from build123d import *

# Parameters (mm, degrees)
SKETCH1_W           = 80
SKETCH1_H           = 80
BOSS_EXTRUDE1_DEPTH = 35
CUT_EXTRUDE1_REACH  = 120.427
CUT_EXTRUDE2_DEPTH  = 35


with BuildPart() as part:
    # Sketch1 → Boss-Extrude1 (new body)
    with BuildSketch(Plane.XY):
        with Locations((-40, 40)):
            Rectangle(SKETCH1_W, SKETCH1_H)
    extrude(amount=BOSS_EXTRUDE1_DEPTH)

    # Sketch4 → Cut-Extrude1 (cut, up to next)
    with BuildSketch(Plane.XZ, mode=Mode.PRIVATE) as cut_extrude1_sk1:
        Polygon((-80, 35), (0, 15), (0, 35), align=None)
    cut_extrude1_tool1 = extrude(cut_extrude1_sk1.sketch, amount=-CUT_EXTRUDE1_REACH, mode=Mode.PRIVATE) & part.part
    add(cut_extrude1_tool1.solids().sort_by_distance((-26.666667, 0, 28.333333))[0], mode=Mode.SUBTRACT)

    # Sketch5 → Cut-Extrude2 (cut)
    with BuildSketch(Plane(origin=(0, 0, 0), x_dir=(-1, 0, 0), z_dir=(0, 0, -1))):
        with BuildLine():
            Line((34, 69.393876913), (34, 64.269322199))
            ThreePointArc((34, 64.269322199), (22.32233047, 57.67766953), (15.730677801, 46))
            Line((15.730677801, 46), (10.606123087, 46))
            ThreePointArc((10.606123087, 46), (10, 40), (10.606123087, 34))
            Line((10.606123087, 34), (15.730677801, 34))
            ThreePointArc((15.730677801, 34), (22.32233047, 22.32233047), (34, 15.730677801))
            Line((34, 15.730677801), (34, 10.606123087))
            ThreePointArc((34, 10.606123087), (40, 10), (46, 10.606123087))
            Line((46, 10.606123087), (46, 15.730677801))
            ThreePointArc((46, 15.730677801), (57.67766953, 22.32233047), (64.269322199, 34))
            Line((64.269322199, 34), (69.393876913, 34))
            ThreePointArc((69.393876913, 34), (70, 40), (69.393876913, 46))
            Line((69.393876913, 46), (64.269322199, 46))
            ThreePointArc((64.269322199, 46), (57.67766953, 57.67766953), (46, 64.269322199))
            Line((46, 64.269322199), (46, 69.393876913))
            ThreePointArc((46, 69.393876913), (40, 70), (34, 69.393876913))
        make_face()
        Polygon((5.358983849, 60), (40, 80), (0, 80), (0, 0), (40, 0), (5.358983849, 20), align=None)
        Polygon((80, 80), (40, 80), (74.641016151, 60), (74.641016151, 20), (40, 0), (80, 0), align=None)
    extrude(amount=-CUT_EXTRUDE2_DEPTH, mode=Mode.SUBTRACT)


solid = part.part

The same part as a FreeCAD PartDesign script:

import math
import FreeCAD as App
import Part
import Sketcher
Q = App.Units.Quantity

doc = App.newDocument("Part")
body = doc.addObject("PartDesign::Body", "Body")

# Sketch on XY plane
sketch1 = body.newObject("Sketcher::SketchObject", "Sketch")
sketch1.AttachmentSupport = (doc.getObject("XY_Plane"), [""])
sketch1.MapMode = "FlatFace"
sketch1.addGeometry(Part.LineSegment(App.Vector(-80, 80, 0), App.Vector(-80, 0, 0)), False)
sketch1.addGeometry(Part.LineSegment(App.Vector(-80, 0, 0), App.Vector(0, 0, 0)), False)
sketch1.addGeometry(Part.LineSegment(App.Vector(0, 0, 0), App.Vector(0, 80, 0)), False)
sketch1.addGeometry(Part.LineSegment(App.Vector(0, 80, 0), App.Vector(-80, 80, 0)), False)
sketch1.addConstraint(Sketcher.Constraint("Coincident", 0, 2, 1, 1))
sketch1.addConstraint(Sketcher.Constraint("Coincident", 1, 2, 2, 1))
sketch1.addConstraint(Sketcher.Constraint("Coincident", 2, 2, 3, 1))
sketch1.addConstraint(Sketcher.Constraint("Coincident", 3, 2, 0, 1))
sketch1.addConstraint(Sketcher.Constraint("Vertical", 0))
sketch1.addConstraint(Sketcher.Constraint("Horizontal", 1))
sketch1.addConstraint(Sketcher.Constraint("Vertical", 2))
sketch1.addConstraint(Sketcher.Constraint("Horizontal", 3))
sketch1.addConstraint(Sketcher.Constraint("Coincident", 1, 2, -1, 1))
sketch1.addConstraint(Sketcher.Constraint("Equal", 3, 0))
sketch1.addConstraint(Sketcher.Constraint("DistanceX", 1, 1, 1, 2, Q("80 mm")))
pad1 = body.newObject("PartDesign::Pad", "Pad")
pad1.Profile = sketch1
pad1.Length = 35

# Sketch on XZ plane
sketch2 = body.newObject("Sketcher::SketchObject", "Sketch001")
sketch2.AttachmentSupport = (doc.getObject("XZ_Plane"), [""])
sketch2.MapMode = "FlatFace"
sketch2.addGeometry(Part.LineSegment(App.Vector(-80, 35, 0), App.Vector(0, 15, 0)), False)
sketch2.addGeometry(Part.LineSegment(App.Vector(0, 15, 0), App.Vector(0, 35, 0)), False)
sketch2.addGeometry(Part.LineSegment(App.Vector(0, 35, 0), App.Vector(-80, 35, 0)), False)
sketch2.addConstraint(Sketcher.Constraint("Coincident", 0, 2, 1, 1))
sketch2.addConstraint(Sketcher.Constraint("Coincident", 1, 2, 2, 1))
sketch2.addConstraint(Sketcher.Constraint("Coincident", 2, 2, 0, 1))
sketch2.addConstraint(Sketcher.Constraint("Vertical", 1))
sketch2.addConstraint(Sketcher.Constraint("Horizontal", 2))
sketch2.addConstraint(Sketcher.Constraint("PointOnObject", 0, 2, -2))
sketch2.addConstraint(Sketcher.Constraint("DistanceX", 2, 2, 2, 1, Q("80 mm")))
sketch2.addConstraint(Sketcher.Constraint("DistanceY", 1, 1, 1, 2, Q("20 mm")))
sketch2.addConstraint(Sketcher.Constraint("DistanceY", -1, 1, 0, 2, Q("15 mm")))
pocket1 = body.newObject("PartDesign::Pocket", "Pocket")
pocket1.Profile = sketch2
pocket1.Type = "UpToFirst"

# Sketch on XY plane
sketch3 = body.newObject("Sketcher::SketchObject", "Sketch002")
sketch3.AttachmentSupport = (doc.getObject("XY_Plane"), [""])
sketch3.MapMode = "FlatFace"
sketch3.addGeometry(Part.LineSegment(App.Vector(-34, 69.393877, 0), App.Vector(-34, 64.269322, 0)), False)
sketch3.addGeometry(Part.ArcOfCircle(Part.Circle(App.Vector(-40, 40, 0), App.Vector(0, 0, 1), 25), math.radians(13.88654), math.radians(76.11346)), False)
sketch3.addGeometry(Part.LineSegment(App.Vector(-15.730678, 46, 0), App.Vector(-10.606123, 46, 0)), False)
sketch3.addGeometry(Part.ArcOfCircle(Part.Circle(App.Vector(-40, 40, 0), App.Vector(0, 0, 1), 30), math.radians(-11.536959), math.radians(11.536959)), False)
sketch3.addGeometry(Part.LineSegment(App.Vector(-10.606123, 34, 0), App.Vector(-15.730678, 34, 0)), False)
sketch3.addGeometry(Part.ArcOfCircle(Part.Circle(App.Vector(-40, 40, 0), App.Vector(0, 0, 1), 25), math.radians(-76.11346), math.radians(-13.88654)), False)
sketch3.addGeometry(Part.LineSegment(App.Vector(-34, 15.730678, 0), App.Vector(-34, 10.606123, 0)), False)
sketch3.addGeometry(Part.ArcOfCircle(Part.Circle(App.Vector(-40, 40, 0), App.Vector(0, 0, 1), 30), math.radians(-101.536959), math.radians(-78.463041)), False)
sketch3.addGeometry(Part.LineSegment(App.Vector(-46, 10.606123, 0), App.Vector(-46, 15.730678, 0)), False)
sketch3.addGeometry(Part.ArcOfCircle(Part.Circle(App.Vector(-40, 40, 0), App.Vector(0, 0, 1), 25), math.radians(-166.11346), math.radians(-103.88654)), False)
sketch3.addGeometry(Part.LineSegment(App.Vector(-64.269322, 34, 0), App.Vector(-69.393877, 34, 0)), False)
sketch3.addGeometry(Part.ArcOfCircle(Part.Circle(App.Vector(-40, 40, 0), App.Vector(0, 0, 1), 30), math.radians(168.463041), math.radians(191.536959)), False)
sketch3.addGeometry(Part.LineSegment(App.Vector(-69.393877, 46, 0), App.Vector(-64.269322, 46, 0)), False)
sketch3.addGeometry(Part.ArcOfCircle(Part.Circle(App.Vector(-40, 40, 0), App.Vector(0, 0, 1), 25), math.radians(103.88654), math.radians(166.11346)), False)
sketch3.addGeometry(Part.LineSegment(App.Vector(-46, 64.269322, 0), App.Vector(-46, 69.393877, 0)), False)
sketch3.addGeometry(Part.ArcOfCircle(Part.Circle(App.Vector(-40, 40, 0), App.Vector(0, 0, 1), 30), math.radians(78.463041), math.radians(101.536959)), False)
sketch3.addGeometry(Part.LineSegment(App.Vector(-5.358984, 60, 0), App.Vector(-40, 80, 0)), False)
sketch3.addGeometry(Part.LineSegment(App.Vector(-40, 80, 0), App.Vector(0, 80, 0)), False)
sketch3.addGeometry(Part.LineSegment(App.Vector(0, 80, 0), App.Vector(0, 0, 0)), False)
sketch3.addGeometry(Part.LineSegment(App.Vector(0, 0, 0), App.Vector(-40, 0, 0)), False)
sketch3.addGeometry(Part.LineSegment(App.Vector(-40, 0, 0), App.Vector(-5.358984, 20, 0)), False)
sketch3.addGeometry(Part.LineSegment(App.Vector(-5.358984, 20, 0), App.Vector(-5.358984, 60, 0)), False)
sketch3.addGeometry(Part.LineSegment(App.Vector(-80, 80, 0), App.Vector(-40, 80, 0)), False)
sketch3.addGeometry(Part.LineSegment(App.Vector(-40, 80, 0), App.Vector(-74.641016, 60, 0)), False)
sketch3.addGeometry(Part.LineSegment(App.Vector(-74.641016, 60, 0), App.Vector(-74.641016, 20, 0)), False)
sketch3.addGeometry(Part.LineSegment(App.Vector(-74.641016, 20, 0), App.Vector(-40, 0, 0)), False)
sketch3.addGeometry(Part.LineSegment(App.Vector(-40, 0, 0), App.Vector(-80, 0, 0)), False)
sketch3.addGeometry(Part.LineSegment(App.Vector(-80, 0, 0), App.Vector(-80, 80, 0)), False)
sketch3.addConstraint(Sketcher.Constraint("Coincident", 0, 2, 1, 2))
sketch3.addConstraint(Sketcher.Constraint("Coincident", 1, 1, 2, 1))
sketch3.addConstraint(Sketcher.Constraint("Coincident", 2, 2, 3, 2))
sketch3.addConstraint(Sketcher.Constraint("Coincident", 3, 1, 4, 1))
sketch3.addConstraint(Sketcher.Constraint("Coincident", 4, 2, 5, 2))
sketch3.addConstraint(Sketcher.Constraint("Coincident", 5, 1, 6, 1))
sketch3.addConstraint(Sketcher.Constraint("Coincident", 6, 2, 7, 2))
sketch3.addConstraint(Sketcher.Constraint("Coincident", 7, 1, 8, 1))
sketch3.addConstraint(Sketcher.Constraint("Coincident", 8, 2, 9, 2))
sketch3.addConstraint(Sketcher.Constraint("Coincident", 9, 1, 10, 1))
sketch3.addConstraint(Sketcher.Constraint("Coincident", 10, 2, 11, 2))
sketch3.addConstraint(Sketcher.Constraint("Coincident", 11, 1, 12, 1))
sketch3.addConstraint(Sketcher.Constraint("Coincident", 12, 2, 13, 2))
sketch3.addConstraint(Sketcher.Constraint("Coincident", 13, 1, 14, 1))
sketch3.addConstraint(Sketcher.Constraint("Coincident", 14, 2, 15, 2))
sketch3.addConstraint(Sketcher.Constraint("Coincident", 15, 1, 0, 1))
sketch3.addConstraint(Sketcher.Constraint("Coincident", 16, 2, 17, 1))
sketch3.addConstraint(Sketcher.Constraint("Coincident", 17, 2, 18, 1))
sketch3.addConstraint(Sketcher.Constraint("Coincident", 18, 2, 19, 1))
sketch3.addConstraint(Sketcher.Constraint("Coincident", 19, 2, 20, 1))
sketch3.addConstraint(Sketcher.Constraint("Coincident", 20, 2, 21, 1))
sketch3.addConstraint(Sketcher.Constraint("Coincident", 21, 2, 16, 1))
sketch3.addConstraint(Sketcher.Constraint("Coincident", 22, 2, 23, 1))
sketch3.addConstraint(Sketcher.Constraint("Coincident", 23, 2, 24, 1))
sketch3.addConstraint(Sketcher.Constraint("Coincident", 24, 2, 25, 1))
sketch3.addConstraint(Sketcher.Constraint("Coincident", 25, 2, 26, 1))
sketch3.addConstraint(Sketcher.Constraint("Coincident", 26, 2, 27, 1))
sketch3.addConstraint(Sketcher.Constraint("Coincident", 27, 2, 22, 1))
sketch3.addConstraint(Sketcher.Constraint("Vertical", 0))
sketch3.addConstraint(Sketcher.Constraint("Horizontal", 2))
sketch3.addConstraint(Sketcher.Constraint("Horizontal", 4))
sketch3.addConstraint(Sketcher.Constraint("Vertical", 6))
sketch3.addConstraint(Sketcher.Constraint("Vertical", 8))
sketch3.addConstraint(Sketcher.Constraint("Horizontal", 10))
sketch3.addConstraint(Sketcher.Constraint("Horizontal", 12))
sketch3.addConstraint(Sketcher.Constraint("Vertical", 14))
sketch3.addConstraint(Sketcher.Constraint("Horizontal", 17))
sketch3.addConstraint(Sketcher.Constraint("Vertical", 18))
sketch3.addConstraint(Sketcher.Constraint("Horizontal", 19))
sketch3.addConstraint(Sketcher.Constraint("Vertical", 21))
sketch3.addConstraint(Sketcher.Constraint("Horizontal", 22))
sketch3.addConstraint(Sketcher.Constraint("Vertical", 24))
sketch3.addConstraint(Sketcher.Constraint("Horizontal", 26))
sketch3.addConstraint(Sketcher.Constraint("Vertical", 27))
sketch3.addConstraint(Sketcher.Constraint("Coincident", 18, 2, -1, 1))
sketch3.addConstraint(Sketcher.Constraint("Coincident", 3, 3, 1, 3))
sketch3.addConstraint(Sketcher.Constraint("Coincident", 5, 3, 1, 3))
sketch3.addConstraint(Sketcher.Constraint("Coincident", 7, 3, 1, 3))
sketch3.addConstraint(Sketcher.Constraint("Coincident", 9, 3, 1, 3))
sketch3.addConstraint(Sketcher.Constraint("Coincident", 11, 3, 1, 3))
sketch3.addConstraint(Sketcher.Constraint("Coincident", 13, 3, 1, 3))
sketch3.addConstraint(Sketcher.Constraint("Coincident", 15, 3, 1, 3))
sketch3.addConstraint(Sketcher.Constraint("Coincident", 22, 2, 16, 2))
sketch3.addConstraint(Sketcher.Constraint("Coincident", 25, 2, 19, 2))
sketch3.addConstraint(Sketcher.Constraint("Equal", 1, 5))
sketch3.addConstraint(Sketcher.Constraint("Equal", 3, 7))
sketch3.addConstraint(Sketcher.Constraint("Equal", 5, 9))
sketch3.addConstraint(Sketcher.Constraint("Equal", 7, 11))
sketch3.addConstraint(Sketcher.Constraint("Equal", 9, 13))
sketch3.addConstraint(Sketcher.Constraint("Equal", 11, 15))
sketch3.addConstraint(Sketcher.Constraint("Parallel", 20, 23))
sketch3.addConstraint(Sketcher.Constraint("Parallel", 16, 25))
sketch3.addConstraint(Sketcher.Constraint("Horizontal", 6, 2, 7, 1))
sketch3.addConstraint(Sketcher.Constraint("Horizontal", 4, 2, 9, 1))
sketch3.addConstraint(Sketcher.Constraint("Horizontal", 2, 2, 11, 1))
sketch3.addConstraint(Sketcher.Constraint("Horizontal", 0, 2, 13, 1))
sketch3.addConstraint(Sketcher.Constraint("Horizontal", 21, 2, 23, 2))
sketch3.addConstraint(Sketcher.Constraint("Horizontal", 20, 2, 24, 2))
sketch3.addConstraint(Sketcher.Constraint("Vertical", 2, 2, 3, 1))
sketch3.addConstraint(Sketcher.Constraint("Vertical", 0, 2, 5, 1))
sketch3.addConstraint(Sketcher.Constraint("Vertical", 15, 3, 16, 2))
sketch3.addConstraint(Sketcher.Constraint("Vertical", 16, 2, 19, 2))
sketch3.addConstraint(Sketcher.Constraint("Equal", 19, 22))
sketch3.addConstraint(Sketcher.Constraint("Equal", 12, 0))
sketch3.addConstraint(Sketcher.Constraint("Equal", 26, 21))
sketch3.addConstraint(Sketcher.Constraint("Radius", 1, Q("25 mm")))
sketch3.addConstraint(Sketcher.Constraint("Radius", 3, Q("30 mm")))
sketch3.addConstraint(Sketcher.Constraint("DistanceX", 17, 1, 17, 2, Q("40 mm")))
sketch3.addConstraint(Sketcher.Constraint("DistanceY", 18, 2, 18, 1, Q("80 mm")))
sketch3.addConstraint(Sketcher.Constraint("Angle", 16, Q("150 deg")))
sketch3.addConstraint(Sketcher.Constraint("DistanceY", -1, 1, 1, 3, Q("40 mm")))
sketch3.addConstraint(Sketcher.Constraint("DistanceX", 0, 2, -1, 1, Q("34 mm")))
pocket2 = body.newObject("PartDesign::Pocket", "Pocket001")
pocket2.Profile = sketch3
pocket2.Length = 35
pocket2.Reversed = True

doc.recompute()
